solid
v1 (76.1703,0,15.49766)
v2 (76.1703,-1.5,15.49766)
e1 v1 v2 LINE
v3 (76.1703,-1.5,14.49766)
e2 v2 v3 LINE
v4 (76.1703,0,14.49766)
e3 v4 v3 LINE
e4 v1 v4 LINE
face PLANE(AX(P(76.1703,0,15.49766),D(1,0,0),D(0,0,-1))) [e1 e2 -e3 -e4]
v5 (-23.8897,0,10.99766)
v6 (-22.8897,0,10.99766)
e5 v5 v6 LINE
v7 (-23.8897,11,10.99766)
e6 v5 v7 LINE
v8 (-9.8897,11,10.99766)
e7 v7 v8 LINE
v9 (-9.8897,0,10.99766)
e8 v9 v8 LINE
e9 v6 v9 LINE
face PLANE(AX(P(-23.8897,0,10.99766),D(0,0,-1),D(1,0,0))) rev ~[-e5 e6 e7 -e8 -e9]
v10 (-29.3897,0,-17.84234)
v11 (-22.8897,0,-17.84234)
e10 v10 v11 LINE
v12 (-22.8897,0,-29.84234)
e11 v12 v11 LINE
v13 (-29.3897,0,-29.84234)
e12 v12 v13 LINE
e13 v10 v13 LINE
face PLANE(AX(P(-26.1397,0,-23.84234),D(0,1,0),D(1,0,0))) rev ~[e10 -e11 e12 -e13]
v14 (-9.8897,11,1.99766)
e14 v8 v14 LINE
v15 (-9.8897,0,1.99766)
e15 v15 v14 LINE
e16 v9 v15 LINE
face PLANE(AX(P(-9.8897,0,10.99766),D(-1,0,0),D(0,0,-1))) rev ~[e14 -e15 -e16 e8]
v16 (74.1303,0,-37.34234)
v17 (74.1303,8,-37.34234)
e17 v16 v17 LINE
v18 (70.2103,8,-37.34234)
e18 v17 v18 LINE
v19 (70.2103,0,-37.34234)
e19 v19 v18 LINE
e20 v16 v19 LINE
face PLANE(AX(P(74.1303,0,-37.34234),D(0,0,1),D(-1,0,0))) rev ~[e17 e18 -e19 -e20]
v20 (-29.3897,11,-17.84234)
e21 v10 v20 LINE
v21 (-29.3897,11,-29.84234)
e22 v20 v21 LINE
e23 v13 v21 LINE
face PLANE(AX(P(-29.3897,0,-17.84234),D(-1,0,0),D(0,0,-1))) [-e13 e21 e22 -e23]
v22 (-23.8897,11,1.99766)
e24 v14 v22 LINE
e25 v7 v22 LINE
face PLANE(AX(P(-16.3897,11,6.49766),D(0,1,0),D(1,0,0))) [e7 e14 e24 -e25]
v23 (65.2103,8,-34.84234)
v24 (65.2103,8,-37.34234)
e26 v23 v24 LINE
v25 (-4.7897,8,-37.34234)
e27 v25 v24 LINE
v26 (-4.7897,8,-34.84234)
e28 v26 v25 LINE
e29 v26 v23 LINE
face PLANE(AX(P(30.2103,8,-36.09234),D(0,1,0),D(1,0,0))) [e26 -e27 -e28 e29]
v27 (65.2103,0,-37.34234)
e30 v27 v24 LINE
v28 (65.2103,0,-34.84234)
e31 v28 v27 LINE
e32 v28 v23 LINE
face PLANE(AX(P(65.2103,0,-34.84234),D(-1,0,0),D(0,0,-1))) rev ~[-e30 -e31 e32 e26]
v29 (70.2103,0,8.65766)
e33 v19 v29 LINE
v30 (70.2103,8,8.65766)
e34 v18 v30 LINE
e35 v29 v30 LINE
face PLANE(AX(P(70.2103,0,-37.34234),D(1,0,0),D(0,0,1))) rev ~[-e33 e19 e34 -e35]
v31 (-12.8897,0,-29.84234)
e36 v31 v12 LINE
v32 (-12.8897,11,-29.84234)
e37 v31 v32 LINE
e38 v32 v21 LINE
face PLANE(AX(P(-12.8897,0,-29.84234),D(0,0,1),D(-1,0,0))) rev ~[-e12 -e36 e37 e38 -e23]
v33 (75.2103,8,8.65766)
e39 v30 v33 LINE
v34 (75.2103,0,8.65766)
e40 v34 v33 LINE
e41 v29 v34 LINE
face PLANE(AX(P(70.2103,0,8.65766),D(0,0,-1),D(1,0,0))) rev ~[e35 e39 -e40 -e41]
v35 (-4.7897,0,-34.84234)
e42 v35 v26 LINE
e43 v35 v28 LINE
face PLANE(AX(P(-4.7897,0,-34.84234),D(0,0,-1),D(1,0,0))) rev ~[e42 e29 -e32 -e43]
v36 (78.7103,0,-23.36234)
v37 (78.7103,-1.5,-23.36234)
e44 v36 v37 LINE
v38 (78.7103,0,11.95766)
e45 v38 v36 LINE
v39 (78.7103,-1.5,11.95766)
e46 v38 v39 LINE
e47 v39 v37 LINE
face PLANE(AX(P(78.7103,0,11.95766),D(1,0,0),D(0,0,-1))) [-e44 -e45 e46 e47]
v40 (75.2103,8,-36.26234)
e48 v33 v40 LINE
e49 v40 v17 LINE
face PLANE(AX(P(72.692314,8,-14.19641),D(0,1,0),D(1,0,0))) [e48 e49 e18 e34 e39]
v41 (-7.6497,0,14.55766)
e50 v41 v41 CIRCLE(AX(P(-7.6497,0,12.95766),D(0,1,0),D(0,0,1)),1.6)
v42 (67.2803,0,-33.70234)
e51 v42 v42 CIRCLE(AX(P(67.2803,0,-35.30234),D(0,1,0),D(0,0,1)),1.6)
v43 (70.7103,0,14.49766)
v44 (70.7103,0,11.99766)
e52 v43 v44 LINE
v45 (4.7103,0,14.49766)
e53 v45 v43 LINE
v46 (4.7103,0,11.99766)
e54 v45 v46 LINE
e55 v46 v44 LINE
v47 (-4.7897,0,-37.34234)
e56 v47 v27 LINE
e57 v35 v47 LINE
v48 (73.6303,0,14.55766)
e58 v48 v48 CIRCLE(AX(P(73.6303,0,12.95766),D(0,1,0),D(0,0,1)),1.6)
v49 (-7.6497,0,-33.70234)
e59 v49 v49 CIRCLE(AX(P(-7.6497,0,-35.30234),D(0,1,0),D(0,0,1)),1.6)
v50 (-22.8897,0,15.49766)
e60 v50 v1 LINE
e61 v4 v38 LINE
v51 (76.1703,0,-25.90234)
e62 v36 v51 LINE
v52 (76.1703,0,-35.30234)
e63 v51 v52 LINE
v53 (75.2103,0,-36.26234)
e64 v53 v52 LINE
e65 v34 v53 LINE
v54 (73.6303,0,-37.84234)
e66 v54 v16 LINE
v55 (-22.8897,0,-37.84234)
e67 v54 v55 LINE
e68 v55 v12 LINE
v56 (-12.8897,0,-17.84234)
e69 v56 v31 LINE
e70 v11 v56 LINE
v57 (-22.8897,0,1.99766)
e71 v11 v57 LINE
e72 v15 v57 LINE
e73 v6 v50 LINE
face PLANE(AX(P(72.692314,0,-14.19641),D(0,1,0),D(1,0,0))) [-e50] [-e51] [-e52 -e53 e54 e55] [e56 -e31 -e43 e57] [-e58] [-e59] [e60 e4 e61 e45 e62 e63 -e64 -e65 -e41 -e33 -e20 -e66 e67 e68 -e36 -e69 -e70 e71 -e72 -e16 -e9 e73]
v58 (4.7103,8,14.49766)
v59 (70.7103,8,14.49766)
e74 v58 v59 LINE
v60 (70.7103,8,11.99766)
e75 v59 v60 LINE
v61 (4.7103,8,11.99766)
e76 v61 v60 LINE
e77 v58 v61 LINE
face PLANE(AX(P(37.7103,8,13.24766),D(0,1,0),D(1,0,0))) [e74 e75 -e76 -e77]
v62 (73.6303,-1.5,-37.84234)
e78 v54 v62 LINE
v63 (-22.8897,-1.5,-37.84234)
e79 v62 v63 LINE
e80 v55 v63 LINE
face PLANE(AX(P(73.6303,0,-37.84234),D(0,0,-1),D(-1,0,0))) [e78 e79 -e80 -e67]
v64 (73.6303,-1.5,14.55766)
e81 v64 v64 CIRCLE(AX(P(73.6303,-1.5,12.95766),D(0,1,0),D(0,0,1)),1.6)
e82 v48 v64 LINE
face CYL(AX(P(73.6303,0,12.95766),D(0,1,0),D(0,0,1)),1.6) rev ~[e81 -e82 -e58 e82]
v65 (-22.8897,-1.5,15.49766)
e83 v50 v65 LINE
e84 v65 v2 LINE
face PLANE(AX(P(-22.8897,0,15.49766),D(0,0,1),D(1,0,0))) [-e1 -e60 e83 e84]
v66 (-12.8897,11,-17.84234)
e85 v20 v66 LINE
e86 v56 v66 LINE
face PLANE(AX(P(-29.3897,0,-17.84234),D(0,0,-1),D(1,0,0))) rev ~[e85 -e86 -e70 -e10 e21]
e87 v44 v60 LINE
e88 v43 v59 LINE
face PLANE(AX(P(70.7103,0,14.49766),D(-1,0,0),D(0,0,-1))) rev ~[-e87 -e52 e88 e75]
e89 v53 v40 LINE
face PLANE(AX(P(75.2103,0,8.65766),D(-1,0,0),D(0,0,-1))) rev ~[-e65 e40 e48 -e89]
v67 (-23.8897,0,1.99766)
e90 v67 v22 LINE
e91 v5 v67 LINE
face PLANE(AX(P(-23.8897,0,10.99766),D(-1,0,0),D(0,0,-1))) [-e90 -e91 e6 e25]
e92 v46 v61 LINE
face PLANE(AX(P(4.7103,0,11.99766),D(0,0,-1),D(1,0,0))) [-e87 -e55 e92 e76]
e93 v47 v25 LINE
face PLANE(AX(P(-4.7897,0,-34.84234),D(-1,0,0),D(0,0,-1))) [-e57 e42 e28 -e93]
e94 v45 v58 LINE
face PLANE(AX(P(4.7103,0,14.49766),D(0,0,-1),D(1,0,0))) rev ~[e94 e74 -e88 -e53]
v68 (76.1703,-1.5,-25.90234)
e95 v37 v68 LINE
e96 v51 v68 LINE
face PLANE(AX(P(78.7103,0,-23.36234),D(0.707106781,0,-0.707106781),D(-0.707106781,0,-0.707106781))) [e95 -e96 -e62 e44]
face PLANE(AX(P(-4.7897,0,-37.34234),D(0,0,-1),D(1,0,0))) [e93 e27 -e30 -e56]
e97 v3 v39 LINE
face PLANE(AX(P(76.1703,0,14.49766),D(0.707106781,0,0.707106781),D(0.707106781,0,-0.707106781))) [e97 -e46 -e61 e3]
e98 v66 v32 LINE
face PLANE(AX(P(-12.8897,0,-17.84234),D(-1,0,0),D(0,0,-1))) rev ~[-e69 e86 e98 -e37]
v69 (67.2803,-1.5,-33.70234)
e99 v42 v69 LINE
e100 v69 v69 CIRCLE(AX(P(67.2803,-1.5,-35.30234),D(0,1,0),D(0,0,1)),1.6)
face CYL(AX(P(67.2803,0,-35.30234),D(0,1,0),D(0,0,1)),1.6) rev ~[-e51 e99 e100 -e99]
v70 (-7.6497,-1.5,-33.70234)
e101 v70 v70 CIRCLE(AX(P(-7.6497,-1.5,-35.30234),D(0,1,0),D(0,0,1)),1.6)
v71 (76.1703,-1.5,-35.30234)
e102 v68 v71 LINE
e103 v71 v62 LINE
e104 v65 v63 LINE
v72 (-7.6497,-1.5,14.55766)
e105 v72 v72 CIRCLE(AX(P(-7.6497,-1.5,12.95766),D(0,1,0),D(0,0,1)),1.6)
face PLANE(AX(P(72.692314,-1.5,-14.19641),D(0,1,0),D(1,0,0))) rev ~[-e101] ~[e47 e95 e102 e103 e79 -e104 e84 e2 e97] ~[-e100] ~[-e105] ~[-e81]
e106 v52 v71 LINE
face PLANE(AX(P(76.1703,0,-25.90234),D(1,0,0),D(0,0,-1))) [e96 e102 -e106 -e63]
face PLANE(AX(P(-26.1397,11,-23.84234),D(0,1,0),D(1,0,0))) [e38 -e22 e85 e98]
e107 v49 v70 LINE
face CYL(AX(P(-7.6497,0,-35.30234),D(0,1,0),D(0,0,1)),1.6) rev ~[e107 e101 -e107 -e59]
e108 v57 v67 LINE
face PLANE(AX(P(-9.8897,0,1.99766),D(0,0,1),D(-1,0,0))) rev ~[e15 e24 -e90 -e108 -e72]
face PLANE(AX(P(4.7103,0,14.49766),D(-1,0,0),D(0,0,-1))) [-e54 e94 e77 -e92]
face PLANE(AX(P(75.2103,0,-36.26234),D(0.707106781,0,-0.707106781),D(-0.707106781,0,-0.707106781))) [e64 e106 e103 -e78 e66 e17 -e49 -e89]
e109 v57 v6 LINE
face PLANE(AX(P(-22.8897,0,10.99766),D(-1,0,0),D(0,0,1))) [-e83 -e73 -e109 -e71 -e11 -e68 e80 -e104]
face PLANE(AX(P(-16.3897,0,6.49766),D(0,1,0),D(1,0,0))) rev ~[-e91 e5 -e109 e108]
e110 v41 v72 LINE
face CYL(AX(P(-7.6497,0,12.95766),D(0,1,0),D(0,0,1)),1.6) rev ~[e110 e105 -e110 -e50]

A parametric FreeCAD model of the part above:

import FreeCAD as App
import Part
import Sketcher
Q = App.Units.Quantity


def add_polygon(sketch, points):
    """Adds a closed chain of lines whose ends are joined by coincident constraints."""
    first, n = sketch.GeometryCount, len(points)
    for a, b in zip(points, points[1:] + points[:1]):
        sketch.addGeometry(Part.LineSegment(App.Vector(*a, 0), App.Vector(*b, 0)), False)
    for i in range(n):
        sketch.addConstraint(Sketcher.Constraint("Coincident", first + i, 2, first + (i + 1) % n, 1))

doc = App.newDocument("Part")
params = doc.addObject("Spreadsheet::Sheet", "Params")
for row, (alias, value) in enumerate([
    ("sketch1_diameter", "3.2 mm"),
    ("sketch1_height", "1 mm"),
    ("sketch1_height2", "9.4 mm"),
    ("sketch1_width", "99.06 mm"),
    ("sketch1_width2", "96.52 mm"),
    ("pad1_length", "1.5 mm"),
    ("sketch2_width", "70 mm"),
    ("sketch2_width2", "5 mm"),
    ("sketch2_width3", "66 mm"),
    ("sketch2_height", "46 mm"),
    ("sketch2_height2", "2.5 mm"),
    ("pad2_length", "8 mm"),
    ("sketch3_height", "12 mm"),
    ("sketch3_width", "16.5 mm"),
    ("pad3_length", "11 mm"),
    ("sketch4_width", "14 mm"),
    ("sketch4_height", "9 mm"),
    ("pad4_length", "11 mm"),
], start=1):
    params.set(f"A{row}", alias)
    params.set(f"B{row}", "=" + value)
    params.setAlias(f"B{row}", alias)

body = doc.addObject("PartDesign::Body", "Body")

# Sketch on XZ plane
sketch1 = doc.addObject("Sketcher::SketchObject", "Sketch")
body.addObject(sketch1)
sketch1.AttachmentSupport = (doc.XZ_Plane, [""])
sketch1.MapMode = "FlatFace"
add_polygon(sketch1, [(-22.8897, 15.49766), (76.1703, 15.49766), (76.1703, 14.49766), (78.7103, 11.95766), (78.7103, -23.36234), (76.1703, -25.90234), (76.1703, -35.30234), (73.6303, -37.84234), (-22.8897, -37.84234)])  # lines 0-8
sketch1.addGeometry(Part.Circle(App.Vector(-7.6497, 12.95766, 0), App.Vector(0, 0, 1), 1.6), False)  # 9
sketch1.addGeometry(Part.Circle(App.Vector(73.6303, 12.95766, 0), App.Vector(0, 0, 1), 1.6), False)  # 10
sketch1.addGeometry(Part.Circle(App.Vector(-7.6497, -35.30234, 0), App.Vector(0, 0, 1), 1.6), False)  # 11
sketch1.addGeometry(Part.Circle(App.Vector(67.2803, -35.30234, 0), App.Vector(0, 0, 1), 1.6), False)  # 12
sketch1.addConstraint(Sketcher.Constraint("Horizontal", 0))
sketch1.addConstraint(Sketcher.Constraint("Vertical", 1))
sketch1.addConstraint(Sketcher.Constraint("Vertical", 3))
sketch1.addConstraint(Sketcher.Constraint("Vertical", 5))
sketch1.addConstraint(Sketcher.Constraint("Horizontal", 7))
sketch1.addConstraint(Sketcher.Constraint("Vertical", 8))
sketch1.addConstraint(Sketcher.Constraint("Equal", 9, 10))
sketch1.addConstraint(Sketcher.Constraint("Equal", 10, 11))
sketch1.addConstraint(Sketcher.Constraint("Equal", 11, 12))
sketch1.addConstraint(Sketcher.Constraint("Perpendicular", 2, 4))
sketch1.addConstraint(Sketcher.Constraint("Parallel", 4, 6))
sketch1.addConstraint(Sketcher.Constraint("Horizontal", 9, 3, 10, 3))
sketch1.addConstraint(Sketcher.Constraint("Horizontal", 11, 3, 12, 3))
sketch1.addConstraint(Sketcher.Constraint("Horizontal", 12, 3, 5, 2))
sketch1.addConstraint(Sketcher.Constraint("Vertical", 9, 3, 11, 3))
sketch1.addConstraint(Sketcher.Constraint("Vertical", 1, 2, 4, 2))
sketch1.addConstraint(Sketcher.Constraint("Vertical", 10, 3, 6, 2))
sketch1.addConstraint(Sketcher.Constraint("Equal", 2, 4))
sketch1.addConstraint(Sketcher.Constraint("Equal", 4, 6))
sketch1.addConstraint(Sketcher.Constraint("Diameter", 9, 3.2))
sketch1.addConstraint(Sketcher.Constraint("DistanceY", 1, 2, 1, 1, 1.0))
sketch1.addConstraint(Sketcher.Constraint("DistanceY", 5, 2, 5, 1, 9.4))
sketch1.addConstraint(Sketcher.Constraint("DistanceY", 2, 2, 10, 3, 1.0))
sketch1.addConstraint(Sketcher.Constraint("DistanceX", 0, 1, 0, 2, 99.06))
sketch1.addConstraint(Sketcher.Constraint("DistanceX", 7, 2, 7, 1, 96.52))
sketch1.addConstraint(Sketcher.Constraint("DistanceY", 3, 2, 3, 1, 35.32))
sketch1.addConstraint(Sketcher.Constraint("DistanceX", 9, 3, 10, 3, 81.28))
sketch1.addConstraint(Sketcher.Constraint("DistanceX", 12, 3, 10, 3, 6.35))
sketch1.addConstraint(Sketcher.Constraint("DistanceX", 9, 3, -1, 1, 7.6497))
sketch1.addConstraint(Sketcher.Constraint("DistanceY", -1, 1, 9, 3, 12.95766))
sketch1.setExpression("Constraints[28]", "Params.sketch1_diameter")
sketch1.setExpression("Constraints[29]", "Params.sketch1_height")
sketch1.setExpression("Constraints[30]", "Params.sketch1_height2")
sketch1.setExpression("Constraints[32]", "Params.sketch1_width")
sketch1.setExpression("Constraints[33]", "Params.sketch1_width2")
pad1 = doc.addObject("PartDesign::Pad", "Pad")
body.addObject(pad1)
pad1.Profile = sketch1
pad1.setExpression("Length", "Params.pad1_length")

# Sketch on XZ plane
sketch2 = doc.addObject("Sketcher::SketchObject", "Sketch001")
body.addObject(sketch2)
sketch2.AttachmentSupport = (doc.XZ_Plane, [""])
sketch2.MapMode = "FlatFace"
add_polygon(sketch2, [(-4.7897, -37.34234), (-4.7897, -34.84234), (65.2103, -34.84234), (65.2103, -37.34234)])  # lines 0-3
add_polygon(sketch2, [(75.2103, -36.26234), (74.1303, -37.34234), (70.2103, -37.34234), (70.2103, 8.65766), (75.2103, 8.65766)])  # lines 4-8
add_polygon(sketch2, [(4.7103, 11.99766), (4.7103, 14.49766), (70.7103, 14.49766), (70.7103, 11.99766)])  # lines 9-12
sketch2.addConstraint(Sketcher.Constraint("Vertical", 0))
sketch2.addConstraint(Sketcher.Constraint("Horizontal", 1))
sketch2.addConstraint(Sketcher.Constraint("Vertical", 2))
sketch2.addConstraint(Sketcher.Constraint("Horizontal", 3))
sketch2.addConstraint(Sketcher.Constraint("Horizontal", 5))
sketch2.addConstraint(Sketcher.Constraint("Vertical", 6))
sketch2.addConstraint(Sketcher.Constraint("Horizontal", 7))
sketch2.addConstraint(Sketcher.Constraint("Vertical", 8))
sketch2.addConstraint(Sketcher.Constraint("Vertical", 9))
sketch2.addConstraint(Sketcher.Constraint("Horizontal", 10))
sketch2.addConstraint(Sketcher.Constraint("Vertical", 11))
sketch2.addConstraint(Sketcher.Constraint("Horizontal", 12))
sketch2.addConstraint(Sketcher.Constraint("Horizontal", 3, 2, 4, 2))
sketch2.addConstraint(Sketcher.Constraint("Equal", 2, 9))
sketch2.addConstraint(Sketcher.Constraint("DistanceX", 1, 1, 1, 2, 70.0))
sketch2.addConstraint(Sketcher.Constraint("DistanceX", 7, 1, 7, 2, 5.0))
sketch2.addConstraint(Sketcher.Constraint("DistanceX", 10, 1, 10, 2, 66.0))
sketch2.addConstraint(Sketcher.Constraint("DistanceY", 6, 1, 6, 2, 46.0))
sketch2.addConstraint(Sketcher.Constraint("Angle", 4, Q("-135 deg")))
sketch2.addConstraint(Sketcher.Constraint("DistanceY", 0, 1, 0, 2, 2.5))
sketch2.addConstraint(Sketcher.Constraint("DistanceX", 2, 2, 5, 2, 5.0))
sketch2.addConstraint(Sketcher.Constraint("DistanceX", 5, 2, 5, 1, 3.92))
sketch2.addConstraint(Sketcher.Constraint("DistanceX", 0, 2, 9, 2, 9.5))
sketch2.addConstraint(Sketcher.Constraint("DistanceY", 0, 2, 9, 2, 49.34))
sketch2.addConstraint(Sketcher.Constraint("DistanceX", 0, 2, -1, 1, 4.7897))
sketch2.addConstraint(Sketcher.Constraint("DistanceY", 0, 2, -1, 1, 34.84234))
sketch2.setExpression("Constraints[27]", "Params.sketch2_width")
sketch2.setExpression("Constraints[28]", "Params.sketch2_width2")
sketch2.setExpression("Constraints[29]", "Params.sketch2_width3")
sketch2.setExpression("Constraints[30]", "Params.sketch2_height")
sketch2.setExpression("Constraints[32]", "Params.sketch2_height2")
pad2 = doc.addObject("PartDesign::Pad", "Pad001")
body.addObject(pad2)
pad2.Profile = sketch2
pad2.setExpression("Length", "Params.pad2_length")
pad2.Reversed = True

# Sketch on XZ plane
sketch3 = doc.addObject("Sketcher::SketchObject", "Sketch002")
body.addObject(sketch3)
sketch3.AttachmentSupport = (doc.XZ_Plane, [""])
sketch3.MapMode = "FlatFace"
add_polygon(sketch3, [(-29.3897, -29.84234), (-29.3897, -17.84234), (-12.8897, -17.84234), (-12.8897, -29.84234)])  # lines 0-3
sketch3.addConstraint(Sketcher.Constraint("Vertical", 0))
sketch3.addConstraint(Sketcher.Constraint("Horizontal", 1))
sketch3.addConstraint(Sketcher.Constraint("Vertical", 2))
sketch3.addConstraint(Sketcher.Constraint("Horizontal", 3))
sketch3.addConstraint(Sketcher.Constraint("DistanceY", 0, 1, 0, 2, 12.0))
sketch3.addConstraint(Sketcher.Constraint("DistanceX", 1, 1, 1, 2, 16.5))
sketch3.addConstraint(Sketcher.Constraint("DistanceX", 0, 2, -1, 1, 29.3897))
sketch3.addConstraint(Sketcher.Constraint("DistanceY", 0, 2, -1, 1, 17.84234))
sketch3.setExpression("Constraints[8]", "Params.sketch3_height")
sketch3.setExpression("Constraints[9]", "Params.sketch3_width")
pad3 = doc.addObject("PartDesign::Pad", "Pad002")
body.addObject(pad3)
pad3.Profile = sketch3
pad3.setExpression("Length", "Params.pad3_length")
pad3.Reversed = True

# Sketch on XZ plane
sketch4 = doc.addObject("Sketcher::SketchObject", "Sketch003")
body.addObject(sketch4)
sketch4.AttachmentSupport = (doc.XZ_Plane, [""])
sketch4.MapMode = "FlatFace"
add_polygon(sketch4, [(-9.8897, 10.99766), (-9.8897, 1.99766), (-23.8897, 1.99766), (-23.8897, 10.99766)])  # lines 0-3
sketch4.addConstraint(Sketcher.Constraint("Vertical", 0))
sketch4.addConstraint(Sketcher.Constraint("Horizontal", 1))
sketch4.addConstraint(Sketcher.Constraint("Vertical", 2))
sketch4.addConstraint(Sketcher.Constraint("Horizontal", 3))
sketch4.addConstraint(Sketcher.Constraint("DistanceX", 1, 2, 1, 1, 14.0))
sketch4.addConstraint(Sketcher.Constraint("DistanceY", 0, 2, 0, 1, 9.0))
sketch4.addConstraint(Sketcher.Constraint("DistanceX", 0, 2, -1, 1, 9.8897))
sketch4.addConstraint(Sketcher.Constraint("DistanceY", -1, 1, 0, 2, 1.99766))
sketch4.setExpression("Constraints[8]", "Params.sketch4_width")
sketch4.setExpression("Constraints[9]", "Params.sketch4_height")
pad4 = doc.addObject("PartDesign::Pad", "Pad003")
body.addObject(pad4)
pad4.Profile = sketch4
pad4.setExpression("Length", "Params.pad4_length")
pad4.Reversed = True

doc.recompute()
